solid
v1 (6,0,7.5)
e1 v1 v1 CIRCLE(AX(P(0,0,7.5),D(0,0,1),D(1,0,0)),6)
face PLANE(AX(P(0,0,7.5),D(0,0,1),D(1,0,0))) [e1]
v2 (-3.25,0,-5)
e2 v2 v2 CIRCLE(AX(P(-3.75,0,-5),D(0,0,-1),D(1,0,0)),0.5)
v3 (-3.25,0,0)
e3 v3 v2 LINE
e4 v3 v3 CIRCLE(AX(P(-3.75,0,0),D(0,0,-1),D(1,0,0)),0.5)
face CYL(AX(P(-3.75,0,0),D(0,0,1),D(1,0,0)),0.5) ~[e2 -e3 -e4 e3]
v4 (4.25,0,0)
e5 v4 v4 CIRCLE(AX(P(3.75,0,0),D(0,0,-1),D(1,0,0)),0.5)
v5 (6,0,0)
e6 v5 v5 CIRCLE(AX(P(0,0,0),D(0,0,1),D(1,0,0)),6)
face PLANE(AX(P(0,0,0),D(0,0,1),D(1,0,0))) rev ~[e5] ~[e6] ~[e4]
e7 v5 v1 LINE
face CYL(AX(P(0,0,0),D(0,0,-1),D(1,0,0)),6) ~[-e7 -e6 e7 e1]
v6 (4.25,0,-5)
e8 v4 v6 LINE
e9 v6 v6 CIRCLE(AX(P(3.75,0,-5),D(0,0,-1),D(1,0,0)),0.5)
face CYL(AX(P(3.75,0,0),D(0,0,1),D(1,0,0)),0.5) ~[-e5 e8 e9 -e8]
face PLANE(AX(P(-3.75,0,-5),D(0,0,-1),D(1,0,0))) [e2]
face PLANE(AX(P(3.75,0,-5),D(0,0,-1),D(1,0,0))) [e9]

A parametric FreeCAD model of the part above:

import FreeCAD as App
import Part
import Sketcher
from FreeCAD import Vector

doc = App.newDocument("Part")
body = doc.addObject("PartDesign::Body", "Body")

# Sketch on XY plane
sketch1 = body.newObject("Sketcher::SketchObject", "Sketch")
sketch1.AttachmentSupport = (doc.getObject("XY_Plane"), [""])
sketch1.MapMode = "FlatFace"
sketch1.addGeometry(Part.Circle(Vector(0, 0, 0), Vector(0, 0, 1), 6), False)
sketch1.addConstraint([
    Sketcher.Constraint("Coincident", 0, 3, -1, 1),
    Sketcher.Constraint("Diameter", 0, 12.0),
])
pad1 = body.newObject("PartDesign::Pad", "Pad")
pad1.Profile = sketch1
pad1.Length = 7.5

# Sketch on XY plane
sketch2 = body.newObject("Sketcher::SketchObject", "Sketch001")
sketch2.AttachmentSupport = (doc.getObject("XY_Plane"), [""])
sketch2.MapMode = "FlatFace"
sketch2.addGeometry([
    Part.Circle(Vector(-3.75, 0, 0), Vector(0, 0, 1), 0.5),
    Part.Circle(Vector(3.75, 0, 0), Vector(0, 0, 1), 0.5),
], False)
sketch2.addConstraint([
    Sketcher.Constraint("Equal", 0, 1),
    Sketcher.Constraint("Symmetric", 0, 3, 1, 3, -1, 1),
    Sketcher.Constraint("PointOnObject", 0, 3, -1),
    Sketcher.Constraint("Diameter", 0, 1.0),
    Sketcher.Constraint("DistanceX", 0, 3, 1, 3, 7.5),
])
pad2 = body.newObject("PartDesign::Pad", "Pad001")
pad2.Profile = sketch2
pad2.Length = 5
pad2.Reversed = True

doc.recompute()
